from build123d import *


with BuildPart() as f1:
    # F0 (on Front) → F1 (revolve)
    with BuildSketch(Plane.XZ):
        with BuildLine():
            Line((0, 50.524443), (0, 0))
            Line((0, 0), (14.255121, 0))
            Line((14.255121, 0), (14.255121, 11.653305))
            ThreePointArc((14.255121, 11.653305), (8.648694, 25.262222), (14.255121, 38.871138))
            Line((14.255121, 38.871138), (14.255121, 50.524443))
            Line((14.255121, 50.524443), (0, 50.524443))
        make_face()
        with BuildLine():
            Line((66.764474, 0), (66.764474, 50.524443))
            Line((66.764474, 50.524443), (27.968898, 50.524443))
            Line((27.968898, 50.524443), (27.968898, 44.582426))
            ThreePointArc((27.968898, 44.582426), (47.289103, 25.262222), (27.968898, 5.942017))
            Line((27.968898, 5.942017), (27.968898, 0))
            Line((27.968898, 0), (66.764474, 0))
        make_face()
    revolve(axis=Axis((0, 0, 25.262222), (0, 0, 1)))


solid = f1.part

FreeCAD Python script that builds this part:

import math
import FreeCAD as App
import Part
import Sketcher
from FreeCAD import Vector
Q = App.Units.Quantity

doc = App.newDocument("Part")
params = doc.addObject("Spreadsheet::Sheet", "Params")
for row, (alias, value) in enumerate([
    ("revolution_angle", "360 deg"),
], start=1):
    params.set(f"A{row}", alias)
    params.set(f"B{row}", "=" + value)
    params.setAlias(f"B{row}", alias)

body = doc.addObject("PartDesign::Body", "Body")
body.AllowCompound = True

# Sketch on XZ plane
sketch1 = body.newObject("Sketcher::SketchObject", "Sketch")
sketch1.AttachmentSupport = (doc.getObject("XZ_Plane"), [""])
sketch1.MapMode = "FlatFace"
sketch1.addGeometry(Part.LineSegment(Vector(0, 50.524443, 0), Vector(0, 0, 0)), False)
sketch1.addGeometry(Part.LineSegment(Vector(0, 0, 0), Vector(14.255121, 0, 0)), False)
sketch1.addGeometry(Part.LineSegment(Vector(14.255121, 0, 0), Vector(14.255121, 11.653305, 0)), False)
sketch1.addGeometry(Part.ArcOfCircle(Part.Circle(Vector(27.968898, 25.262221, 0), Vector(0, 0, 1), 19.320204), math.radians(135.219893), math.radians(224.780107)), False)
sketch1.addGeometry(Part.LineSegment(Vector(14.255121, 38.871138, 0), Vector(14.255121, 50.524443, 0)), False)
sketch1.addGeometry(Part.LineSegment(Vector(14.255121, 50.524443, 0), Vector(0, 50.524443, 0)), False)
sketch1.addGeometry(Part.LineSegment(Vector(66.764474, 0, 0), Vector(66.764474, 50.524443, 0)), False)
sketch1.addGeometry(Part.LineSegment(Vector(66.764474, 50.524443, 0), Vector(27.968898, 50.524443, 0)), False)
sketch1.addGeometry(Part.LineSegment(Vector(27.968898, 50.524443, 0), Vector(27.968898, 44.582426, 0)), False)
sketch1.addGeometry(Part.ArcOfCircle(Part.Circle(Vector(27.968899, 25.262221, 0), Vector(0, 0, 1), 19.320204), math.radians(-90.000001), math.radians(90.000001)), False)
sketch1.addGeometry(Part.LineSegment(Vector(27.968898, 5.942017, 0), Vector(27.968898, 0, 0)), False)
sketch1.addGeometry(Part.LineSegment(Vector(27.968898, 0, 0), Vector(66.764474, 0, 0)), False)
sketch1.addConstraint(Sketcher.Constraint("Coincident", 0, 2, 1, 1))
sketch1.addConstraint(Sketcher.Constraint("Coincident", 1, 2, 2, 1))
sketch1.addConstraint(Sketcher.Constraint("Coincident", 2, 2, 3, 2))
sketch1.addConstraint(Sketcher.Constraint("Coincident", 3, 1, 4, 1))
sketch1.addConstraint(Sketcher.Constraint("Coincident", 4, 2, 5, 1))
sketch1.addConstraint(Sketcher.Constraint("Coincident", 5, 2, 0, 1))
sketch1.addConstraint(Sketcher.Constraint("Coincident", 6, 2, 7, 1))
sketch1.addConstraint(Sketcher.Constraint("Coincident", 7, 2, 8, 1))
sketch1.addConstraint(Sketcher.Constraint("Coincident", 8, 2, 9, 2))
sketch1.addConstraint(Sketcher.Constraint("Coincident", 9, 1, 10, 1))
sketch1.addConstraint(Sketcher.Constraint("Coincident", 10, 2, 11, 1))
sketch1.addConstraint(Sketcher.Constraint("Coincident", 11, 2, 6, 1))
sketch1.addConstraint(Sketcher.Constraint("Vertical", 0))
sketch1.addConstraint(Sketcher.Constraint("Horizontal", 1))
sketch1.addConstraint(Sketcher.Constraint("Vertical", 2))
sketch1.addConstraint(Sketcher.Constraint("Vertical", 4))
sketch1.addConstraint(Sketcher.Constraint("Horizontal", 5))
sketch1.addConstraint(Sketcher.Constraint("Vertical", 6))
sketch1.addConstraint(Sketcher.Constraint("Horizontal", 7))
sketch1.addConstraint(Sketcher.Constraint("Vertical", 8))
sketch1.addConstraint(Sketcher.Constraint("Vertical", 10))
sketch1.addConstraint(Sketcher.Constraint("Horizontal", 11))
sketch1.addConstraint(Sketcher.Constraint("Coincident", 0, 2, -1, 1))
sketch1.addConstraint(Sketcher.Constraint("Coincident", 9, 3, 3, 3))
sketch1.addConstraint(Sketcher.Constraint("Equal", 3, 9))
sketch1.addConstraint(Sketcher.Constraint("PointOnObject", 10, 2, -1))
sketch1.addConstraint(Sketcher.Constraint("Horizontal", 5, 2, 6, 2))
sketch1.addConstraint(Sketcher.Constraint("Vertical", 2, 2, 3, 1))
sketch1.addConstraint(Sketcher.Constraint("Vertical", 9, 3, 7, 2))
sketch1.addConstraint(Sketcher.Constraint("Vertical", 8, 2, 9, 1))
sketch1.addConstraint(Sketcher.Constraint("Equal", 2, 4))
sketch1.addConstraint(Sketcher.Constraint("Radius", 3, Q("19.320204 mm")))
sketch1.addConstraint(Sketcher.Constraint("DistanceX", 1, 1, 1, 2, Q("14.255121 mm")))
sketch1.addConstraint(Sketcher.Constraint("DistanceX", -1, 1, 3, 3, Q("27.968898 mm")))
sketch1.addConstraint(Sketcher.Constraint("DistanceX", 7, 2, 7, 1, Q("38.795576 mm")))
sketch1.addConstraint(Sketcher.Constraint("DistanceY", 0, 2, 0, 1, Q("50.524443 mm")))
revolution = body.newObject("PartDesign::Revolution", "Revolution")
revolution.Profile = sketch1
revolution.ReferenceAxis = (sketch1, ["V_Axis"])
revolution.setExpression("Angle", "Params.revolution_angle")

doc.recompute()
